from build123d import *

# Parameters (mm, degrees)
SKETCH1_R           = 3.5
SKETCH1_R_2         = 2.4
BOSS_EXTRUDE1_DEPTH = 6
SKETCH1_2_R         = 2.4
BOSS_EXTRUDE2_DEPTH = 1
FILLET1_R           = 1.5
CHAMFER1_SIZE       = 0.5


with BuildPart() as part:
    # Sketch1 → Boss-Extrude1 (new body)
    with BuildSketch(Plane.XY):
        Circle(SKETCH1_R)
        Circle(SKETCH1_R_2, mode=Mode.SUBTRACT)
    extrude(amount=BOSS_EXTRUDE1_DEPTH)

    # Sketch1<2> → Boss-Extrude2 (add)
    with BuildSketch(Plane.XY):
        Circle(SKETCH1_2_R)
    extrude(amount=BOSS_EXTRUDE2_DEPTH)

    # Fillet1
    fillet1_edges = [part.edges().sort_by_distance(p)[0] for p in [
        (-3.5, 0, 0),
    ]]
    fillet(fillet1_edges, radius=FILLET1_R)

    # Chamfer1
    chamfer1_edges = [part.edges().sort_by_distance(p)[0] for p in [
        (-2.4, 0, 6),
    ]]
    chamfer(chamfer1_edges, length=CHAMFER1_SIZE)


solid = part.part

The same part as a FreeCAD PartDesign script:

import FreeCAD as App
import Part
import Sketcher
from FreeCAD import Vector


def edges_at(feature, points):
    """Names of the edges that pass closest to the given points."""
    edges = feature.Shape.Edges
    near = lambda p: min(range(len(edges)), key=lambda i: edges[i].distToShape(Part.Vertex(*p))[0])
    return sorted({f"Edge{near(p) + 1}" for p in points})

doc = App.newDocument("Part")
body = doc.addObject("PartDesign::Body", "Body")

# Sketch on XY plane
sketch1 = doc.addObject("Sketcher::SketchObject", "Sketch")
body.addObject(sketch1)
sketch1.AttachmentSupport = (doc.XY_Plane, [""])
sketch1.MapMode = "FlatFace"
sketch1.addGeometry([
    Part.Circle(Vector(0, 0, 0), Vector(0, 0, 1), 3.5),
    Part.Circle(Vector(0, 0, 0), Vector(0, 0, 1), 2.4),
], False)
sketch1.addConstraint([
    Sketcher.Constraint("Coincident", 0, 3, -1, 1),
    Sketcher.Constraint("Coincident", 1, 3, -1, 1),
    Sketcher.Constraint("Diameter", 0, 7.0),
    Sketcher.Constraint("Diameter", 1, 4.8),
])
pad1 = doc.addObject("PartDesign::Pad", "Pad")
body.addObject(pad1)
pad1.Profile = sketch1
pad1.Length = 6

# Sketch on XY plane
sketch2 = doc.addObject("Sketcher::SketchObject", "Sketch001")
body.addObject(sketch2)
sketch2.AttachmentSupport = (doc.XY_Plane, [""])
sketch2.MapMode = "FlatFace"
sketch2.addGeometry(Part.Circle(Vector(0, 0, 0), Vector(0, 0, 1), 2.4), False)
sketch2.addConstraint([
    Sketcher.Constraint("Coincident", 0, 3, -1, 1),
    Sketcher.Constraint("Diameter", 0, 4.8),
])
pad2 = doc.addObject("PartDesign::Pad", "Pad001")
body.addObject(pad2)
pad2.Profile = sketch2
pad2.Length = 1
doc.recompute()

fillet = doc.addObject("PartDesign::Fillet", "Fillet")
body.addObject(fillet)
fillet.Base = (pad2, edges_at(pad2, [(-3.5, 0, 0)]))
fillet.Radius = 1.5
doc.recompute()

chamfer = doc.addObject("PartDesign::Chamfer", "Chamfer")
body.addObject(chamfer)
chamfer.Base = (fillet, edges_at(fillet, [(-2.4, 0, 6)]))
chamfer.Size = 0.5

doc.recompute()
